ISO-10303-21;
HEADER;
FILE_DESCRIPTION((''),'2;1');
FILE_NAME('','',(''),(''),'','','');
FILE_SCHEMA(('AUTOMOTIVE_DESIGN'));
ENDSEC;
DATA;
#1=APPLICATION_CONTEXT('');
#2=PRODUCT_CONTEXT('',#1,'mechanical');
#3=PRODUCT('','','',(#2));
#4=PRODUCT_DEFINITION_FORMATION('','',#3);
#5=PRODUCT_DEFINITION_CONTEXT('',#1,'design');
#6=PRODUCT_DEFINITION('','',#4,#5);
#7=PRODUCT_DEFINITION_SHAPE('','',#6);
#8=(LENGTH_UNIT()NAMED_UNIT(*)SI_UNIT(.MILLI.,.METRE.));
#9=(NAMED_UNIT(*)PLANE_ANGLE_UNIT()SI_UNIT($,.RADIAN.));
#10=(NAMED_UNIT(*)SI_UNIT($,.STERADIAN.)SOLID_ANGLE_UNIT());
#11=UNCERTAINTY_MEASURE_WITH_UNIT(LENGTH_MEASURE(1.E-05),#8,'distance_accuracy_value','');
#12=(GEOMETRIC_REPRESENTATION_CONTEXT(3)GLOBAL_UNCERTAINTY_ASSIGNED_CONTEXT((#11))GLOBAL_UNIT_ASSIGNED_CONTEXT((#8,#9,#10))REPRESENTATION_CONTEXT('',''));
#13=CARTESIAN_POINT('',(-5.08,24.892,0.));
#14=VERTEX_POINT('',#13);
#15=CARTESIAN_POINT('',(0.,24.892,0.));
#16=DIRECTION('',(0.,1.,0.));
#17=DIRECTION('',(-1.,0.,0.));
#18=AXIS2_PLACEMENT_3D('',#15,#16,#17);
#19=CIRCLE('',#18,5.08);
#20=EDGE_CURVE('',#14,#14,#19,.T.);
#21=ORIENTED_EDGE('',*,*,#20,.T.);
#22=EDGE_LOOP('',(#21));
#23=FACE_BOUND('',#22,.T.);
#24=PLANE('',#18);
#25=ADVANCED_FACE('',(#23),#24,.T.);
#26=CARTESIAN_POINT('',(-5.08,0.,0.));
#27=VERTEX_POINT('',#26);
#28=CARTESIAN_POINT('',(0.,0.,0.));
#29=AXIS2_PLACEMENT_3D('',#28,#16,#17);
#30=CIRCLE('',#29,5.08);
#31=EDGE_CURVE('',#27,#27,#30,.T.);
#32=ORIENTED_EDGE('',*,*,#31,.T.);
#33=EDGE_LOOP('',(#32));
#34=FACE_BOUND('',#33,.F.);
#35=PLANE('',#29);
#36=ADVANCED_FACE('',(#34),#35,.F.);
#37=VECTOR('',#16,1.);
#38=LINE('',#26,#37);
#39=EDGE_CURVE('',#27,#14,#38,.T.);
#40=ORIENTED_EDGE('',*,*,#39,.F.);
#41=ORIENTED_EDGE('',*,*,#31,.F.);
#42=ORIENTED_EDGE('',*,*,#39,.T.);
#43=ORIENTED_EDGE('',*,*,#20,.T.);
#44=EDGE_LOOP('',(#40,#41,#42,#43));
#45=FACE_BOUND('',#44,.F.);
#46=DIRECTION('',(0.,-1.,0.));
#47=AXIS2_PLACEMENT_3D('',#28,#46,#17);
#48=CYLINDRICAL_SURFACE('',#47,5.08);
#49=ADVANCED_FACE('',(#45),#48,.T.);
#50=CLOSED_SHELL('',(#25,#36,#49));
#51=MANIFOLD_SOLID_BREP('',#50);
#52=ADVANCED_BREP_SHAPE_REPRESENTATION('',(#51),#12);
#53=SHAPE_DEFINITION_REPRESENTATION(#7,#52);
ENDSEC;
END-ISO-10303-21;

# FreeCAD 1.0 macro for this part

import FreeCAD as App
import Part
import Sketcher

V = App.Vector
Q = App.Units.Quantity

doc = App.newDocument("Part")
params = doc.addObject("Spreadsheet::Sheet", "Params")
for row, (alias, value) in enumerate([
    ("sketch1_diameter", "0.4 in"),
    ("pad1_length", "0.98 in"),
], start=1):
    params.set(f"A{row}", alias)
    params.set(f"B{row}", "=" + value)
    params.setAlias(f"B{row}", alias)

body = doc.addObject("PartDesign::Body", "Body")

sketch1 = body.newObject("Sketcher::SketchObject", "Sketch")
sketch1.AttachmentSupport = (doc.getObject("XZ_Plane"), [""])
sketch1.MapMode = "FlatFace"
sketch1.addGeometry(Part.Circle(V(0, 0, 0), V(0, 0, 1), 5), False)
sketch1.addConstraint(Sketcher.Constraint("Coincident", 0, 3, -1, 1))
sketch1.addConstraint(Sketcher.Constraint("Diameter", 0, Q("0.4 in")))
sketch1.setExpression("Constraints[1]", "Params.sketch1_diameter")
pad1 = body.newObject("PartDesign::Pad", "Pad")
pad1.Profile = sketch1
pad1.setExpression("Length", "Params.pad1_length")
pad1.Reversed = True

doc.recompute()
